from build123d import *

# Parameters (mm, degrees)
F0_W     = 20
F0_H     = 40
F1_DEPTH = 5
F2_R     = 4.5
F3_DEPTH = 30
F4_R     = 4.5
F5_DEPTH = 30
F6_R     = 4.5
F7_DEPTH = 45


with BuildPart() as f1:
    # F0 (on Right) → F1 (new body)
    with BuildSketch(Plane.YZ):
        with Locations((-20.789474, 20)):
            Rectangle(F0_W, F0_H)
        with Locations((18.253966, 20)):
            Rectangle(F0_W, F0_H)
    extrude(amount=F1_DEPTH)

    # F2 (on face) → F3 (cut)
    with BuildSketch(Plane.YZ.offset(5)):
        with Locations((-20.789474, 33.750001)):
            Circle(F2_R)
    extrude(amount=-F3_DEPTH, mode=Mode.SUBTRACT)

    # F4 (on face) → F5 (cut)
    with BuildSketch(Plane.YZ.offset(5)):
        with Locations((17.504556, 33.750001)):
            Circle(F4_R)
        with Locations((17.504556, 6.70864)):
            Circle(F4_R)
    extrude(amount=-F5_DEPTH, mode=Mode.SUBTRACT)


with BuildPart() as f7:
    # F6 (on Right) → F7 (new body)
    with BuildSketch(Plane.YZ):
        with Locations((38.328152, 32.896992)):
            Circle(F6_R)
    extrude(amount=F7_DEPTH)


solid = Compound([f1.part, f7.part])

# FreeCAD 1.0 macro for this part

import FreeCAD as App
import Part
import Sketcher

V = App.Vector
Q = App.Units.Quantity

doc = App.newDocument("Part")
body = doc.addObject("PartDesign::Body", "Body")
body.AllowCompound = True

sketch1 = body.newObject("Sketcher::SketchObject", "Sketch")
sketch1.AttachmentSupport = (doc.getObject("YZ_Plane"), [""])
sketch1.MapMode = "FlatFace"
sketch1.addGeometry(Part.LineSegment(V(-30.789474, 40, 0), V(-30.789474, 0, 0)), False)
sketch1.addGeometry(Part.LineSegment(V(-30.789474, 0, 0), V(-10.789474, 0, 0)), False)
sketch1.addGeometry(Part.LineSegment(V(-10.789474, 0, 0), V(-10.789474, 40, 0)), False)
sketch1.addGeometry(Part.LineSegment(V(-10.789474, 40, 0), V(-30.789474, 40, 0)), False)
sketch1.addGeometry(Part.LineSegment(V(8.253966, 40, 0), V(8.253966, 0, 0)), False)
sketch1.addGeometry(Part.LineSegment(V(8.253966, 0, 0), V(28.253966, 0, 0)), False)
sketch1.addGeometry(Part.LineSegment(V(28.253966, 0, 0), V(28.253966, 40, 0)), False)
sketch1.addGeometry(Part.LineSegment(V(28.253966, 40, 0), V(8.253966, 40, 0)), False)
sketch1.addConstraint(Sketcher.Constraint("Coincident", 0, 2, 1, 1))
sketch1.addConstraint(Sketcher.Constraint("Coincident", 1, 2, 2, 1))
sketch1.addConstraint(Sketcher.Constraint("Coincident", 2, 2, 3, 1))
sketch1.addConstraint(Sketcher.Constraint("Coincident", 3, 2, 0, 1))
sketch1.addConstraint(Sketcher.Constraint("Coincident", 4, 2, 5, 1))
sketch1.addConstraint(Sketcher.Constraint("Coincident", 5, 2, 6, 1))
sketch1.addConstraint(Sketcher.Constraint("Coincident", 6, 2, 7, 1))
sketch1.addConstraint(Sketcher.Constraint("Coincident", 7, 2, 4, 1))
sketch1.addConstraint(Sketcher.Constraint("Vertical", 0))
sketch1.addConstraint(Sketcher.Constraint("Horizontal", 1))
sketch1.addConstraint(Sketcher.Constraint("Vertical", 2))
sketch1.addConstraint(Sketcher.Constraint("Horizontal", 3))
sketch1.addConstraint(Sketcher.Constraint("Vertical", 4))
sketch1.addConstraint(Sketcher.Constraint("Horizontal", 5))
sketch1.addConstraint(Sketcher.Constraint("Vertical", 6))
sketch1.addConstraint(Sketcher.Constraint("Horizontal", 7))
sketch1.addConstraint(Sketcher.Constraint("PointOnObject", 0, 2, -1))
sketch1.addConstraint(Sketcher.Constraint("PointOnObject", 4, 2, -1))
sketch1.addConstraint(Sketcher.Constraint("Horizontal", 3, 2, 6, 2))
sketch1.addConstraint(Sketcher.Constraint("Equal", 3, 5))
sketch1.addConstraint(Sketcher.Constraint("DistanceX", 1, 1, 1, 2, Q("20 mm")))
sketch1.addConstraint(Sketcher.Constraint("DistanceY", 0, 2, 0, 1, Q("40 mm")))
sketch1.addConstraint(Sketcher.Constraint("DistanceX", 1, 2, 4, 2, Q("19.04344 mm")))
sketch1.addConstraint(Sketcher.Constraint("DistanceX", 0, 2, -1, 1, Q("30.789474 mm")))
pad1 = body.newObject("PartDesign::Pad", "Pad")
pad1.Profile = sketch1
pad1.Length = 5

sketch2 = body.newObject("Sketcher::SketchObject", "Sketch001")
sketch2.AttachmentSupport = (doc.getObject("YZ_Plane"), [""])
sketch2.MapMode = "FlatFace"
sketch2.AttachmentOffset = App.Placement(V(0, 0, 5), App.Rotation())
sketch2.addGeometry(Part.Circle(V(-20.789474, 33.750001, 0), V(0, 0, 1), 4.5), False)
sketch2.addConstraint(Sketcher.Constraint("Diameter", 0, Q("9 mm")))
sketch2.addConstraint(Sketcher.Constraint("DistanceY", -1, 1, 0, 3, Q("33.750001 mm")))
sketch2.addConstraint(Sketcher.Constraint("DistanceX", 0, 3, -1, 1, Q("20.789474 mm")))
pocket1 = body.newObject("PartDesign::Pocket", "Pocket")
pocket1.Profile = sketch2
pocket1.Length = 30

sketch3 = body.newObject("Sketcher::SketchObject", "Sketch002")
sketch3.AttachmentSupport = (doc.getObject("YZ_Plane"), [""])
sketch3.MapMode = "FlatFace"
sketch3.AttachmentOffset = App.Placement(V(0, 0, 5), App.Rotation())
sketch3.addGeometry(Part.Circle(V(17.504556, 33.750001, 0), V(0, 0, 1), 4.5), False)
sketch3.addGeometry(Part.Circle(V(17.504556, 6.70864, 0), V(0, 0, 1), 4.5), False)
sketch3.addConstraint(Sketcher.Constraint("Equal", 0, 1))
sketch3.addConstraint(Sketcher.Constraint("Vertical", 0, 3, 1, 3))
sketch3.addConstraint(Sketcher.Constraint("Diameter", 0, Q("9 mm")))
sketch3.addConstraint(Sketcher.Constraint("DistanceY", -1, 1, 0, 3, Q("33.750001 mm")))
sketch3.addConstraint(Sketcher.Constraint("DistanceY", -1, 1, 1, 3, Q("6.70864 mm")))
sketch3.addConstraint(Sketcher.Constraint("DistanceX", -1, 1, 0, 3, Q("17.504556 mm")))
pocket2 = body.newObject("PartDesign::Pocket", "Pocket001")
pocket2.Profile = sketch3
pocket2.Length = 30
body2 = doc.addObject("PartDesign::Body", "Body001")

sketch4 = body2.newObject("Sketcher::SketchObject", "Sketch003")
sketch4.AttachmentSupport = (doc.getObject("YZ_Plane001"), [""])
sketch4.MapMode = "FlatFace"
sketch4.addGeometry(Part.Circle(V(38.328152, 32.896992, 0), V(0, 0, 1), 4.5), False)
sketch4.addConstraint(Sketcher.Constraint("Diameter", 0, Q("9 mm")))
sketch4.addConstraint(Sketcher.Constraint("DistanceY", -1, 1, 0, 3, Q("32.896992 mm")))
sketch4.addConstraint(Sketcher.Constraint("DistanceX", -1, 1, 0, 3, Q("38.328152 mm")))
pad2 = body2.newObject("PartDesign::Pad", "Pad001")
pad2.Profile = sketch4
pad2.Length = 45

doc.recompute()
